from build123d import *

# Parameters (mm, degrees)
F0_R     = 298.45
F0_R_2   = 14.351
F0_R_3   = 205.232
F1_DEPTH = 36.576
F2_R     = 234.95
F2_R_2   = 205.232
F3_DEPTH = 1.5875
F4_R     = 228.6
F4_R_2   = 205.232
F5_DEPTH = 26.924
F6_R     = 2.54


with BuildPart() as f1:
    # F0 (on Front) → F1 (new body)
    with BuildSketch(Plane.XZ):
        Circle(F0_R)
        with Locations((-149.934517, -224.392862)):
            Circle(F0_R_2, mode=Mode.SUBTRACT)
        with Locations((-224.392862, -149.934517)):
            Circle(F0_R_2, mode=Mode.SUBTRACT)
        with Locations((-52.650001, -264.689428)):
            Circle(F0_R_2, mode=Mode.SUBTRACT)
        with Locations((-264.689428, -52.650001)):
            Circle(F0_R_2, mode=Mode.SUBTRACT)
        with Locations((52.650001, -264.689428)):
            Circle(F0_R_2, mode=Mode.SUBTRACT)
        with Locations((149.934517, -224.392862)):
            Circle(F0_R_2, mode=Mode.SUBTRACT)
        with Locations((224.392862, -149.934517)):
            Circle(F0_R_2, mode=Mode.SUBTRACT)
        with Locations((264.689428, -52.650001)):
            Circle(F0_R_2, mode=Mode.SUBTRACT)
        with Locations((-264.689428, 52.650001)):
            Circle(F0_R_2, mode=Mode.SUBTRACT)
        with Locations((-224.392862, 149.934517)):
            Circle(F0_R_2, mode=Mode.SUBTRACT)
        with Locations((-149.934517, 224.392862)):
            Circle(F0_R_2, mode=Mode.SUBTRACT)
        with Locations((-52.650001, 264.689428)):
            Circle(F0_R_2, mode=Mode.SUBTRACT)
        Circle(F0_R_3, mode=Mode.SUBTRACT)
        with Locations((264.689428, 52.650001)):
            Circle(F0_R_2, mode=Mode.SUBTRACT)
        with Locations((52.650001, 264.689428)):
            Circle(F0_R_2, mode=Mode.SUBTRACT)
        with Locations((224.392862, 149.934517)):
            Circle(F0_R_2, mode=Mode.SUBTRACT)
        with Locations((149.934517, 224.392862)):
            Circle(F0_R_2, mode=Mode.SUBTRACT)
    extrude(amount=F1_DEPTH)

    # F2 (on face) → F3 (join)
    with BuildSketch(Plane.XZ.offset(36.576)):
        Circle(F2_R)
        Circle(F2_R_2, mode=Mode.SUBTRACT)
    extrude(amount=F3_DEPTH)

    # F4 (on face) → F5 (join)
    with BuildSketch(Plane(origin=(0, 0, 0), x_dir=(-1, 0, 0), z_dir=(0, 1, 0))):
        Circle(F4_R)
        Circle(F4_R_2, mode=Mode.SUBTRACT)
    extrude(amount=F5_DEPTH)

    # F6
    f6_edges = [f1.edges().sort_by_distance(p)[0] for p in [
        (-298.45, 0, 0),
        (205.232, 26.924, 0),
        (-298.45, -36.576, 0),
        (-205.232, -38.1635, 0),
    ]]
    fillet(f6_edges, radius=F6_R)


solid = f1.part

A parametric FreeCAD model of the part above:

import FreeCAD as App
import Part
import Sketcher

V = App.Vector
Q = App.Units.Quantity


def edges_at(feature, points):
    """Names of the edges that pass closest to the given points."""
    edges = feature.Shape.Edges
    near = lambda p: min(range(len(edges)), key=lambda i: edges[i].distToShape(Part.Vertex(*p))[0])
    return sorted({f"Edge{near(p) + 1}" for p in points})

doc = App.newDocument("Part")
body = doc.addObject("PartDesign::Body", "Body")

# Sketch on XZ plane
sketch1 = body.newObject("Sketcher::SketchObject", "Sketch")
sketch1.AttachmentSupport = (doc.getObject("XZ_Plane"), [""])
sketch1.MapMode = "FlatFace"
sketch1.addGeometry(Part.Circle(V(0, 0, 0), V(0, 0, 1), 298), False)
sketch1.addGeometry(Part.Circle(V(-150, -224, 0), V(0, 0, 1), 14), False)
sketch1.addGeometry(Part.Circle(V(-224, -150, 0), V(0, 0, 1), 14), False)
sketch1.addGeometry(Part.Circle(V(-53, -265, 0), V(0, 0, 1), 14), False)
sketch1.addGeometry(Part.Circle(V(-265, -53, 0), V(0, 0, 1), 14), False)
sketch1.addGeometry(Part.Circle(V(53, -265, 0), V(0, 0, 1), 14), False)
sketch1.addGeometry(Part.Circle(V(150, -224, 0), V(0, 0, 1), 14), False)
sketch1.addGeometry(Part.Circle(V(224, -150, 0), V(0, 0, 1), 14), False)
sketch1.addGeometry(Part.Circle(V(265, -53, 0), V(0, 0, 1), 14), False)
sketch1.addGeometry(Part.Circle(V(-265, 53, 0), V(0, 0, 1), 14), False)
sketch1.addGeometry(Part.Circle(V(-224, 150, 0), V(0, 0, 1), 14), False)
sketch1.addGeometry(Part.Circle(V(-150, 224, 0), V(0, 0, 1), 14), False)
sketch1.addGeometry(Part.Circle(V(-53, 265, 0), V(0, 0, 1), 14), False)
sketch1.addGeometry(Part.Circle(V(0, 0, 0), V(0, 0, 1), 205), False)
sketch1.addGeometry(Part.Circle(V(265, 53, 0), V(0, 0, 1), 14), False)
sketch1.addGeometry(Part.Circle(V(53, 265, 0), V(0, 0, 1), 14), False)
sketch1.addGeometry(Part.Circle(V(224, 150, 0), V(0, 0, 1), 14), False)
sketch1.addGeometry(Part.Circle(V(150, 224, 0), V(0, 0, 1), 14), False)
sketch1.addConstraint(Sketcher.Constraint("Coincident", 0, 3, -1, 1))
sketch1.addConstraint(Sketcher.Constraint("Coincident", 13, 3, -1, 1))
sketch1.addConstraint(Sketcher.Constraint("Equal", 1, 2))
sketch1.addConstraint(Sketcher.Constraint("Equal", 2, 3))
sketch1.addConstraint(Sketcher.Constraint("Equal", 3, 4))
sketch1.addConstraint(Sketcher.Constraint("Equal", 4, 5))
sketch1.addConstraint(Sketcher.Constraint("Equal", 5, 6))
sketch1.addConstraint(Sketcher.Constraint("Equal", 6, 7))
sketch1.addConstraint(Sketcher.Constraint("Equal", 7, 8))
sketch1.addConstraint(Sketcher.Constraint("Equal", 8, 9))
sketch1.addConstraint(Sketcher.Constraint("Equal", 9, 10))
sketch1.addConstraint(Sketcher.Constraint("Equal", 10, 11))
sketch1.addConstraint(Sketcher.Constraint("Equal", 11, 12))
sketch1.addConstraint(Sketcher.Constraint("Equal", 12, 14))
sketch1.addConstraint(Sketcher.Constraint("Equal", 14, 15))
sketch1.addConstraint(Sketcher.Constraint("Equal", 15, 16))
sketch1.addConstraint(Sketcher.Constraint("Equal", 16, 17))
sketch1.addConstraint(Sketcher.Constraint("Symmetric", 8, 3, 9, 3, -1, 1))
sketch1.addConstraint(Sketcher.Constraint("Symmetric", 7, 3, 10, 3, -1, 1))
sketch1.addConstraint(Sketcher.Constraint("Symmetric", 6, 3, 11, 3, -1, 1))
sketch1.addConstraint(Sketcher.Constraint("Symmetric", 5, 3, 12, 3, -1, 1))
sketch1.addConstraint(Sketcher.Constraint("Symmetric", 4, 3, 14, 3, -1, 1))
sketch1.addConstraint(Sketcher.Constraint("Symmetric", 3, 3, 15, 3, -1, 1))
sketch1.addConstraint(Sketcher.Constraint("Symmetric", 2, 3, 16, 3, -1, 1))
sketch1.addConstraint(Sketcher.Constraint("Symmetric", 1, 3, 17, 3, -1, 1))
sketch1.addConstraint(Sketcher.Constraint("Symmetric", 3, 3, 5, 3, -2))
sketch1.addConstraint(Sketcher.Constraint("Symmetric", 1, 3, 6, 3, -2))
sketch1.addConstraint(Sketcher.Constraint("Symmetric", 2, 3, 7, 3, -2))
sketch1.addConstraint(Sketcher.Constraint("Symmetric", 4, 3, 8, 3, -2))
sketch1.addConstraint(Sketcher.Constraint("Diameter", 0, Q("23.5 in")))
sketch1.addConstraint(Sketcher.Constraint("Diameter", 1, Q("1.13 in")))
sketch1.addConstraint(Sketcher.Constraint("Diameter", 13, Q("16.16 in")))
sketch1.addConstraint(Sketcher.Constraint("DistanceX", 3, 3, -1, 1, Q("52.650001 mm")))
sketch1.addConstraint(Sketcher.Constraint("DistanceY", 4, 3, -1, 1, Q("52.650001 mm")))
sketch1.addConstraint(Sketcher.Constraint("DistanceY", 1, 3, -1, 1, Q("224.392862 mm")))
sketch1.addConstraint(Sketcher.Constraint("DistanceX", 2, 3, -1, 1, Q("224.392862 mm")))
sketch1.addConstraint(Sketcher.Constraint("DistanceY", 3, 3, -1, 1, Q("264.689428 mm")))
sketch1.addConstraint(Sketcher.Constraint("DistanceX", 4, 3, -1, 1, Q("264.689428 mm")))
sketch1.addConstraint(Sketcher.Constraint("DistanceY", 3, 3, 2, 3, Q("114.754911 mm")))
sketch1.addConstraint(Sketcher.Constraint("DistanceX", 4, 3, 1, 3, Q("114.754911 mm")))
pad1 = body.newObject("PartDesign::Pad", "Pad")
pad1.Profile = sketch1
pad1.Length = Q("1.44 in")

# Sketch on XZ plane
sketch2 = body.newObject("Sketcher::SketchObject", "Sketch001")
sketch2.AttachmentSupport = (doc.getObject("XZ_Plane"), [""])
sketch2.MapMode = "FlatFace"
sketch2.AttachmentOffset = App.Placement(V(0, 0, 1.44 * 25.4), App.Rotation())
sketch2.addGeometry(Part.Circle(V(0, 0, 0), V(0, 0, 1), 235), False)
sketch2.addGeometry(Part.Circle(V(0, 0, 0), V(0, 0, 1), 205), False)
sketch2.addConstraint(Sketcher.Constraint("Coincident", 0, 3, -1, 1))
sketch2.addConstraint(Sketcher.Constraint("Coincident", 1, 3, -1, 1))
sketch2.addConstraint(Sketcher.Constraint("Diameter", 0, Q("18.5 in")))
sketch2.addConstraint(Sketcher.Constraint("Diameter", 1, Q("16.16 in")))
pad2 = body.newObject("PartDesign::Pad", "Pad001")
pad2.Profile = sketch2
pad2.Length = Q("0.0625 in")

# Sketch on XZ plane
sketch3 = body.newObject("Sketcher::SketchObject", "Sketch002")
sketch3.AttachmentSupport = (doc.getObject("XZ_Plane"), [""])
sketch3.MapMode = "FlatFace"
sketch3.addGeometry(Part.Circle(V(0, 0, 0), V(0, 0, 1), 229), False)
sketch3.addGeometry(Part.Circle(V(0, 0, 0), V(0, 0, 1), 205), False)
sketch3.addConstraint(Sketcher.Constraint("Coincident", 0, 3, -1, 1))
sketch3.addConstraint(Sketcher.Constraint("Coincident", 1, 3, -1, 1))
sketch3.addConstraint(Sketcher.Constraint("Diameter", 0, Q("18 in")))
sketch3.addConstraint(Sketcher.Constraint("Diameter", 1, Q("16.16 in")))
pad3 = body.newObject("PartDesign::Pad", "Pad002")
pad3.Profile = sketch3
pad3.Length = Q("1.06 in")
pad3.Reversed = True
doc.recompute()

fillet = body.newObject("PartDesign::Fillet", "Fillet")
fillet.Base = (pad3, edges_at(pad3, [
    (-298.45, 0, 0),
    (205.232, 26.924, 0),
    (-298.45, -36.576, 0),
    (-205.232, -38.163, 0),
]))
fillet.Radius = Q("0.1 in")

doc.recompute()
